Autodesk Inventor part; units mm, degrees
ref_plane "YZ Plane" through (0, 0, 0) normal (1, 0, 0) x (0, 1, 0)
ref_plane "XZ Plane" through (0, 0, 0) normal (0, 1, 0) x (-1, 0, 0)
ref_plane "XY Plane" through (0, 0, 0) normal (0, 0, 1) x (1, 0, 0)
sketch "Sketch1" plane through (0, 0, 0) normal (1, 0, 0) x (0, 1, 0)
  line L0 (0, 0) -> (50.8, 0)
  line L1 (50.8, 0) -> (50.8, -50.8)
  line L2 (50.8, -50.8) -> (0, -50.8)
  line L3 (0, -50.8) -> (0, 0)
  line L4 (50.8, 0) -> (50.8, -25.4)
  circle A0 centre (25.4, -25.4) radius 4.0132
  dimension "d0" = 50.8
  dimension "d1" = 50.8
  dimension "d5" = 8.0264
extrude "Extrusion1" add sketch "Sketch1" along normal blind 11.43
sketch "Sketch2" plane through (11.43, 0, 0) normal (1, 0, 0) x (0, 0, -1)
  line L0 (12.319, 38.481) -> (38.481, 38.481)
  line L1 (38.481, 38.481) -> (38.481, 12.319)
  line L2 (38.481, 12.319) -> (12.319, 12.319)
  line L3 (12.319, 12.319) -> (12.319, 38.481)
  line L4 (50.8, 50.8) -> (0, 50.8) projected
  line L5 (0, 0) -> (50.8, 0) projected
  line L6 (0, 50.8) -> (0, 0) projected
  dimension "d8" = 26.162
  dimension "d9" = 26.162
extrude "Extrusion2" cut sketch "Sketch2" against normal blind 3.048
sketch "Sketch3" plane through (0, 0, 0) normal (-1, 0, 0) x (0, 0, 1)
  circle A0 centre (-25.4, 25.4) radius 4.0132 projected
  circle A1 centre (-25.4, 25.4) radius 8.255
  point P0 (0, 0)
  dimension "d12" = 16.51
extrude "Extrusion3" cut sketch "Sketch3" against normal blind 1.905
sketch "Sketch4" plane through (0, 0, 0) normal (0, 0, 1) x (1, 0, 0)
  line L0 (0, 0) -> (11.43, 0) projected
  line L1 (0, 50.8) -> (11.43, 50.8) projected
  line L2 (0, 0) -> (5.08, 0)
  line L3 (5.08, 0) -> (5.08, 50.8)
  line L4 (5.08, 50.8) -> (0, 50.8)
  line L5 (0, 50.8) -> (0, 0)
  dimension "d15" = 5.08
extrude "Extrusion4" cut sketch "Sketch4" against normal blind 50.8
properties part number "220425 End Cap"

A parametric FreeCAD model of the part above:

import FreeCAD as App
import Part
import Sketcher

V = App.Vector
Q = App.Units.Quantity


def add_polygon(sketch, points):
    """Adds a closed chain of lines whose ends are joined by coincident constraints."""
    first, n = sketch.GeometryCount, len(points)
    for a, b in zip(points, points[1:] + points[:1]):
        sketch.addGeometry(Part.LineSegment(App.Vector(*a, 0), App.Vector(*b, 0)), False)
    for i in range(n):
        sketch.addConstraint(Sketcher.Constraint("Coincident", first + i, 2, first + (i + 1) % n, 1))

doc = App.newDocument("Part")
params = doc.addObject("Spreadsheet::Sheet", "Params")
for row, (alias, value) in enumerate([
    ("sketch1_width", "2 in"),
    ("sketch1_diameter", "0.316 in"),
    ("pad1_length", "0.45 in"),
    ("sketch2_width", "1.03 in"),
    ("pocket1_length", "0.12 in"),
    ("sketch3_diameter", "0.65 in"),
    ("sketch3_diameter2", "0.316 in"),
    ("pocket2_length", "0.075 in"),
    ("sketch4_width", "0.2 in"),
    ("sketch4_height", "2 in"),
    ("pocket3_length", "2 in"),
], start=1):
    params.set(f"A{row}", alias)
    params.set(f"B{row}", "=" + value)
    params.setAlias(f"B{row}", alias)

body = doc.addObject("PartDesign::Body", "Body")

sketch1 = body.newObject("Sketcher::SketchObject", "Sketch")
sketch1.AttachmentSupport = (doc.getObject("YZ_Plane"), [""])
sketch1.MapMode = "FlatFace"
add_polygon(sketch1, [(50.8, 0), (0, 0), (0, -50.8), (50.8, -50.8)])
sketch1.addGeometry(Part.Circle(V(25.4, -25.4, 0), V(0, 0, 1), 4), False)
sketch1.addConstraint([
    Sketcher.Constraint("Horizontal", 0),
    Sketcher.Constraint("Vertical", 1),
    Sketcher.Constraint("Horizontal", 2),
    Sketcher.Constraint("Vertical", 3),
    Sketcher.Constraint("Coincident", 0, 2, -1, 1),
    Sketcher.Constraint("Equal", 2, 1),
    Sketcher.Constraint("DistanceX", 0, 2, 0, 1, Q("2 in")),
    Sketcher.Constraint("Diameter", 4, Q("0.316 in")),
    Sketcher.Constraint("DistanceX", -1, 1, 4, 3, Q("1 in")),
    Sketcher.Constraint("DistanceY", 4, 3, -1, 1, Q("1 in")),
])
sketch1.setExpression("Constraints[10]", "Params.sketch1_width")
sketch1.setExpression("Constraints[11]", "Params.sketch1_diameter")
pad1 = body.newObject("PartDesign::Pad", "Pad")
pad1.Profile = sketch1
pad1.setExpression("Length", "Params.pad1_length")

sketch2 = body.newObject("Sketcher::SketchObject", "Sketch001")
sketch2.AttachmentSupport = (doc.getObject("YZ_Plane"), [""])
sketch2.MapMode = "FlatFace"
sketch2.AttachmentOffset = App.Placement(V(0, 0, 0.45 * 25.4), App.Rotation())
add_polygon(sketch2, [(38, -38), (38, -12), (12, -12), (12, -38)])
sketch2.addConstraint([
    Sketcher.Constraint("Vertical", 0),
    Sketcher.Constraint("Horizontal", 1),
    Sketcher.Constraint("Vertical", 2),
    Sketcher.Constraint("Horizontal", 3),
    Sketcher.Constraint("Equal", 3, 0),
    Sketcher.Constraint("DistanceX", 1, 2, 1, 1, Q("1.03 in")),
    Sketcher.Constraint("DistanceX", -1, 1, 0, 2, Q("1.515 in")),
    Sketcher.Constraint("DistanceY", 0, 2, -1, 1, Q("0.485 in")),
])
sketch2.setExpression("Constraints[9]", "Params.sketch2_width")
pocket1 = body.newObject("PartDesign::Pocket", "Pocket")
pocket1.Profile = sketch2
pocket1.setExpression("Length", "Params.pocket1_length")

sketch3 = body.newObject("Sketcher::SketchObject", "Sketch002")
sketch3.AttachmentSupport = (doc.getObject("YZ_Plane"), [""])
sketch3.MapMode = "FlatFace"
sketch3.addGeometry([
    Part.Circle(V(25.4, -25.4, 0), V(0, 0, 1), 8.3),
    Part.Circle(V(25.4, -25.4, 0), V(0, 0, 1), 4),
], False)
sketch3.addConstraint([
    Sketcher.Constraint("Coincident", 1, 3, 0, 3),
    Sketcher.Constraint("Diameter", 0, Q("0.65 in")),
    Sketcher.Constraint("Diameter", 1, Q("0.316 in")),
    Sketcher.Constraint("DistanceX", -1, 1, 0, 3, Q("1 in")),
    Sketcher.Constraint("DistanceY", 0, 3, -1, 1, Q("1 in")),
])
sketch3.setExpression("Constraints[1]", "Params.sketch3_diameter")
sketch3.setExpression("Constraints[2]", "Params.sketch3_diameter2")
pocket2 = body.newObject("PartDesign::Pocket", "Pocket001")
pocket2.Profile = sketch3
pocket2.setExpression("Length", "Params.pocket2_length")
pocket2.Reversed = True

sketch4 = body.newObject("Sketcher::SketchObject", "Sketch003")
sketch4.AttachmentSupport = (doc.getObject("XY_Plane"), [""])
sketch4.MapMode = "FlatFace"
add_polygon(sketch4, [(0, 51), (0, 0), (5, 0), (5, 51)])
sketch4.addConstraint([
    Sketcher.Constraint("Vertical", 0),
    Sketcher.Constraint("Horizontal", 1),
    Sketcher.Constraint("Vertical", 2),
    Sketcher.Constraint("Horizontal", 3),
    Sketcher.Constraint("Coincident", 0, 2, -1, 1),
    Sketcher.Constraint("DistanceX", 1, 1, 1, 2, Q("0.2 in")),
    Sketcher.Constraint("DistanceY", 0, 2, 0, 1, Q("2 in")),
])
sketch4.setExpression("Constraints[9]", "Params.sketch4_width")
sketch4.setExpression("Constraints[10]", "Params.sketch4_height")
pocket3 = body.newObject("PartDesign::Pocket", "Pocket002")
pocket3.Profile = sketch4
pocket3.setExpression("Length", "Params.pocket3_length")

doc.recompute()
